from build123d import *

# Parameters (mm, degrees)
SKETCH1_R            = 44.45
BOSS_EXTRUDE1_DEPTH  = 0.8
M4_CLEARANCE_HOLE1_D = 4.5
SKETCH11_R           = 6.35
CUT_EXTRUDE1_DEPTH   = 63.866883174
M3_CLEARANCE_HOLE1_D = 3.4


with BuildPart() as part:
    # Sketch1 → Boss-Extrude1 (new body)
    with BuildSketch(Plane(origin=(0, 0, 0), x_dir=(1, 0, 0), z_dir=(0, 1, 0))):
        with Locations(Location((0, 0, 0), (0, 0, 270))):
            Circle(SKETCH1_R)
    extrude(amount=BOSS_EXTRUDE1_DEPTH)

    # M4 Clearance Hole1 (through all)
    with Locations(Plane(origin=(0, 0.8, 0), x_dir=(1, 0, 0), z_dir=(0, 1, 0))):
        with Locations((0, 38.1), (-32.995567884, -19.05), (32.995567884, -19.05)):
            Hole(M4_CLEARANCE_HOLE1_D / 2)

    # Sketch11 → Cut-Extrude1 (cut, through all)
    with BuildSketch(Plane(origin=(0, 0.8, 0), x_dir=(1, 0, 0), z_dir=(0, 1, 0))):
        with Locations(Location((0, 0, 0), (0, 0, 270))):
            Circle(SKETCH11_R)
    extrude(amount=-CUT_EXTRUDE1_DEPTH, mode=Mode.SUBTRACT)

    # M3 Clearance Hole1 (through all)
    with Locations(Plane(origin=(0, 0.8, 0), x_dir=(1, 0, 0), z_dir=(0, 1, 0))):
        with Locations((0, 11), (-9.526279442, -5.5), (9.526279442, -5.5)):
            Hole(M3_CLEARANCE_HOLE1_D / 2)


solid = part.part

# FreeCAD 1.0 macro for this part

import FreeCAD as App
import Part
import Sketcher

V = App.Vector

doc = App.newDocument("Part")
body = doc.addObject("PartDesign::Body", "Body")

sketch1 = body.newObject("Sketcher::SketchObject", "Sketch")
sketch1.AttachmentSupport = (doc.getObject("XZ_Plane"), [""])
sketch1.MapMode = "FlatFace"
sketch1.addGeometry(Part.Circle(V(0, 0, 0), V(0, 0, 1), 44.45), False)
sketch1.addConstraint([
    Sketcher.Constraint("Coincident", 0, 3, -1, 1),
    Sketcher.Constraint("Diameter", 0, 88.9),
])
pad1 = body.newObject("PartDesign::Pad", "Pad")
pad1.Profile = sketch1
pad1.Length = 0.8
pad1.Reversed = True

sketch2 = body.newObject("Sketcher::SketchObject", "Sketch001")
sketch2.AttachmentSupport = (doc.getObject("XZ_Plane"), [""])
sketch2.MapMode = "FlatFace"
sketch2.AttachmentOffset = App.Placement(V(0, 0, -0.8), App.Rotation())
sketch2.addGeometry([
    Part.Circle(V(0, -38.1, 0), V(0, 0, 1), 2.25),
    Part.Circle(V(-32.995568, 19.05, 0), V(0, 0, 1), 2.25),
    Part.Circle(V(32.995568, 19.05, 0), V(0, 0, 1), 2.25),
], False)
sketch2.addConstraint([
    Sketcher.Constraint("Equal", 0, 1),
    Sketcher.Constraint("Equal", 1, 2),
    Sketcher.Constraint("Symmetric", 1, 3, 2, 3, -2),
    Sketcher.Constraint("PointOnObject", 0, 3, -2),
    Sketcher.Constraint("Diameter", 0, 4.5),
    Sketcher.Constraint("DistanceY", 0, 3, -1, 1, 38.1),
    Sketcher.Constraint("DistanceY", -1, 1, 1, 3, 19.05),
    Sketcher.Constraint("DistanceX", 1, 3, -1, 1, 32.995568),
])
doc.recompute()
hole = body.newObject("PartDesign::Hole", "Hole")
hole.Profile = sketch2
hole.ThreadType = "None"
hole.Diameter = 4.5
hole.DepthType = "ThroughAll"
hole.Reversed = True

sketch3 = body.newObject("Sketcher::SketchObject", "Sketch002")
sketch3.AttachmentSupport = (doc.getObject("XZ_Plane"), [""])
sketch3.MapMode = "FlatFace"
sketch3.AttachmentOffset = App.Placement(V(0, 0, -0.8), App.Rotation())
sketch3.addGeometry(Part.Circle(V(0, 0, 0), V(0, 0, 1), 6.35), False)
sketch3.addConstraint([
    Sketcher.Constraint("Coincident", 0, 3, -1, 1),
    Sketcher.Constraint("Diameter", 0, 12.7),
])
pocket1 = body.newObject("PartDesign::Pocket", "Pocket")
pocket1.Profile = sketch3
pocket1.Type = "ThroughAll"
pocket1.Reversed = True

sketch4 = body.newObject("Sketcher::SketchObject", "Sketch003")
sketch4.AttachmentSupport = (doc.getObject("XZ_Plane"), [""])
sketch4.MapMode = "FlatFace"
sketch4.AttachmentOffset = App.Placement(V(0, 0, -0.8), App.Rotation())
sketch4.addGeometry([
    Part.Circle(V(0, -11, 0), V(0, 0, 1), 1.7),
    Part.Circle(V(-9.526279, 5.5, 0), V(0, 0, 1), 1.7),
    Part.Circle(V(9.526279, 5.5, 0), V(0, 0, 1), 1.7),
], False)
sketch4.addConstraint([
    Sketcher.Constraint("Equal", 0, 1),
    Sketcher.Constraint("Equal", 1, 2),
    Sketcher.Constraint("Symmetric", 1, 3, 2, 3, -2),
    Sketcher.Constraint("PointOnObject", 0, 3, -2),
    Sketcher.Constraint("Diameter", 0, 3.4),
    Sketcher.Constraint("DistanceY", 0, 3, -1, 1, 11.0),
    Sketcher.Constraint("DistanceY", -1, 1, 1, 3, 5.5),
    Sketcher.Constraint("DistanceX", 1, 3, -1, 1, 9.526279),
])
doc.recompute()
hole2 = body.newObject("PartDesign::Hole", "Hole001")
hole2.Profile = sketch4
hole2.ThreadType = "None"
hole2.Diameter = 3.4
hole2.DepthType = "ThroughAll"
hole2.Reversed = True

doc.recompute()
